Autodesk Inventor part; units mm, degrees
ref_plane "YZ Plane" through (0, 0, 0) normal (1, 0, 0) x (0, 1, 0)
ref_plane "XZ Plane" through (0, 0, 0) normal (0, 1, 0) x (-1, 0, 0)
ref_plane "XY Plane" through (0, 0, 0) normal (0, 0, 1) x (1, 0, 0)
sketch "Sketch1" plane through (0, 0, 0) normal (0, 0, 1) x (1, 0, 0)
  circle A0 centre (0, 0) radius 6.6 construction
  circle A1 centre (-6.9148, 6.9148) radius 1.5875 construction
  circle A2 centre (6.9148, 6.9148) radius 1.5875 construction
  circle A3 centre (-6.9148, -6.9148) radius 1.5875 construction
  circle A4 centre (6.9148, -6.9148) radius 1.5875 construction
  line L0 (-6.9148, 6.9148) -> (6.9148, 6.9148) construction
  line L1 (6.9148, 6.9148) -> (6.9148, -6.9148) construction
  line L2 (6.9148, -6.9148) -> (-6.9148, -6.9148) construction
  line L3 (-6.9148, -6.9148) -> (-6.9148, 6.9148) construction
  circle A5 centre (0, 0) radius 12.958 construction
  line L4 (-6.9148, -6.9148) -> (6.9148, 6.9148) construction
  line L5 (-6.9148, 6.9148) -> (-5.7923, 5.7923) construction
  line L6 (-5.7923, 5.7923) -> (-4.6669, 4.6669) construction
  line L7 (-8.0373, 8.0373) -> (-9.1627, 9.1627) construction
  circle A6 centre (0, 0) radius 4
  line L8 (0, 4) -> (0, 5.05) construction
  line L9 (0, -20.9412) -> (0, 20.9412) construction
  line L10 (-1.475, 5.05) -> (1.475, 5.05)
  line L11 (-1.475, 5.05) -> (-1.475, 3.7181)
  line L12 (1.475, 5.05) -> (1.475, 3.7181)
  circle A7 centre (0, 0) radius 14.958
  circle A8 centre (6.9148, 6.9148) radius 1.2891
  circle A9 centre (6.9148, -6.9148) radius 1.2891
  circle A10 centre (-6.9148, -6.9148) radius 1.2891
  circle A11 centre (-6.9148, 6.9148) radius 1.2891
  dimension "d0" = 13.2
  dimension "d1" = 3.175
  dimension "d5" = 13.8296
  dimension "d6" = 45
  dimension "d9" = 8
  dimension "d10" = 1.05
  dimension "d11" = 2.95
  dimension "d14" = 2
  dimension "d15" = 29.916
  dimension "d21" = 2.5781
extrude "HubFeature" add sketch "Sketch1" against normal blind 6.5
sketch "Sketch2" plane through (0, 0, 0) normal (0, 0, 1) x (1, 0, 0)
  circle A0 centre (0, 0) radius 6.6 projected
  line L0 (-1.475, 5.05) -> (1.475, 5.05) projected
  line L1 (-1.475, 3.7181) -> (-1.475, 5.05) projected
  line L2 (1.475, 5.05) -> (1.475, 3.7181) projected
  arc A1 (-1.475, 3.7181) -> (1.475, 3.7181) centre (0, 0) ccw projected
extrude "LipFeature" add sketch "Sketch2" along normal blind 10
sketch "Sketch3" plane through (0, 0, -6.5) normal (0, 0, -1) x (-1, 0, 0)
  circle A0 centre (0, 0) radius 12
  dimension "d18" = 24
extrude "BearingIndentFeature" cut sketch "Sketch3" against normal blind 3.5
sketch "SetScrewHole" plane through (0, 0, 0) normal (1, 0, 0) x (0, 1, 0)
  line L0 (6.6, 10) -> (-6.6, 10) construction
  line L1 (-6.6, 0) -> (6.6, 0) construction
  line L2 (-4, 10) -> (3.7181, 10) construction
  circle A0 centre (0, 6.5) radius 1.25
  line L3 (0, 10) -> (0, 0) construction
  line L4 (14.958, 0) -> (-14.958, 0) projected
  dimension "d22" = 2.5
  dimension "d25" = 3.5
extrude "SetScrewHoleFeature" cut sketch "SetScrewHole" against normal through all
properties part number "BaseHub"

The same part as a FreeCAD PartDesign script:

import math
import FreeCAD as App
import Part
import Sketcher
Q = App.Units.Quantity

doc = App.newDocument("Part")
body = doc.addObject("PartDesign::Body", "Body")

sketch1 = doc.addObject("Sketcher::SketchObject", "Sketch")
body.addObject(sketch1)
sketch1.AttachmentSupport = (doc.XY_Plane, [""])
sketch1.MapMode = "FlatFace"
sketch1.addGeometry([
    Part.Circle(App.Vector(0, 0, 0), App.Vector(0, 0, 1), 15),
    Part.Circle(App.Vector(-6.9, -6.9, 0), App.Vector(0, 0, 1), 1.3),
    Part.Circle(App.Vector(6.9, -6.9, 0), App.Vector(0, 0, 1), 1.3),
    Part.Circle(App.Vector(-6.9, 6.9, 0), App.Vector(0, 0, 1), 1.3),
    Part.ArcOfCircle(Part.Circle(App.Vector(0, 0, 0), App.Vector(0, 0, 1), 4), math.radians(112), math.radians(428)),
    Part.LineSegment(App.Vector(-1.5, 3.7, 0), App.Vector(-1.5, 5, 0)),
    Part.LineSegment(App.Vector(-1.5, 5, 0), App.Vector(1.5, 5, 0)),
    Part.LineSegment(App.Vector(1.5, 5, 0), App.Vector(1.5, 3.7, 0)),
    Part.Circle(App.Vector(6.9, 6.9, 0), App.Vector(0, 0, 1), 1.3),
], False)
sketch1.addConstraint([
    Sketcher.Constraint("Coincident", 4, 1, 5, 1),
    Sketcher.Constraint("Coincident", 5, 2, 6, 1),
    Sketcher.Constraint("Coincident", 6, 2, 7, 1),
    Sketcher.Constraint("Coincident", 7, 2, 4, 2),
    Sketcher.Constraint("Vertical", 5),
    Sketcher.Constraint("Horizontal", 6),
    Sketcher.Constraint("Vertical", 7),
    Sketcher.Constraint("Coincident", 0, 3, -1, 1),
    Sketcher.Constraint("Coincident", 4, 3, -1, 1),
    Sketcher.Constraint("Equal", 1, 2),
    Sketcher.Constraint("Equal", 2, 3),
    Sketcher.Constraint("Equal", 3, 8),
    Sketcher.Constraint("Symmetric", 2, 3, 3, 3, -1, 1),
    Sketcher.Constraint("Symmetric", 1, 3, 8, 3, -1, 1),
    Sketcher.Constraint("Symmetric", 1, 3, 2, 3, -2),
    Sketcher.Constraint("Horizontal", 4, 1, 7, 2),
    Sketcher.Constraint("Radius", 4, Q("4 mm")),
    Sketcher.Constraint("Diameter", 0, Q("29.916 mm")),
    Sketcher.Constraint("Diameter", 1, Q("2.5782 mm")),
    Sketcher.Constraint("DistanceX", 6, 1, 6, 2, Q("2.95 mm")),
    Sketcher.Constraint("DistanceX", 1, 3, 2, 3, Q("13.8296 mm")),
    Sketcher.Constraint("DistanceY", 1, 3, 3, 3, Q("13.8296 mm")),
    Sketcher.Constraint("DistanceY", 5, 1, 5, 2, Q("1.332 mm")),
])
pad1 = doc.addObject("PartDesign::Pad", "Pad")
body.addObject(pad1)
pad1.Profile = sketch1
pad1.Length = 6.5
pad1.Reversed = True

sketch2 = doc.addObject("Sketcher::SketchObject", "Sketch001")
body.addObject(sketch2)
sketch2.AttachmentSupport = (doc.XY_Plane, [""])
sketch2.MapMode = "FlatFace"
sketch2.addGeometry([
    Part.Circle(App.Vector(0, 0, 0), App.Vector(0, 0, 1), 6.6),
    Part.LineSegment(App.Vector(-1.5, 3.7, 0), App.Vector(-1.5, 5, 0)),
    Part.LineSegment(App.Vector(-1.5, 5, 0), App.Vector(1.5, 5, 0)),
    Part.LineSegment(App.Vector(1.5, 5, 0), App.Vector(1.5, 3.7, 0)),
    Part.ArcOfCircle(Part.Circle(App.Vector(0, 0, 0), App.Vector(0, 0, 1), 4), math.radians(112), math.radians(428)),
], False)
sketch2.addConstraint([
    Sketcher.Constraint("Coincident", 1, 2, 2, 1),
    Sketcher.Constraint("Coincident", 2, 2, 3, 1),
    Sketcher.Constraint("Coincident", 3, 2, 4, 2),
    Sketcher.Constraint("Coincident", 4, 1, 1, 1),
    Sketcher.Constraint("Vertical", 1),
    Sketcher.Constraint("Horizontal", 2),
    Sketcher.Constraint("Vertical", 3),
    Sketcher.Constraint("Coincident", 0, 3, -1, 1),
    Sketcher.Constraint("Coincident", 4, 3, -1, 1),
    Sketcher.Constraint("Horizontal", 3, 2, 4, 1),
    Sketcher.Constraint("Radius", 4, Q("4 mm")),
    Sketcher.Constraint("Diameter", 0, Q("13.2 mm")),
    Sketcher.Constraint("DistanceX", 2, 1, 2, 2, Q("2.95 mm")),
    Sketcher.Constraint("DistanceY", 1, 1, 1, 2, Q("1.332 mm")),
])
pad2 = doc.addObject("PartDesign::Pad", "Pad001")
body.addObject(pad2)
pad2.Profile = sketch2
pad2.Length = 10

sketch3 = doc.addObject("Sketcher::SketchObject", "Sketch002")
body.addObject(sketch3)
sketch3.AttachmentSupport = (doc.XY_Plane, [""])
sketch3.MapMode = "FlatFace"
sketch3.AttachmentOffset = App.Placement(App.Vector(0, 0, -6.5), App.Rotation())
sketch3.addGeometry(Part.Circle(App.Vector(0, 0, 0), App.Vector(0, 0, 1), 12), False)
sketch3.addConstraint([
    Sketcher.Constraint("Coincident", 0, 3, -1, 1),
    Sketcher.Constraint("Diameter", 0, Q("24 mm")),
])
pocket1 = doc.addObject("PartDesign::Pocket", "Pocket")
body.addObject(pocket1)
pocket1.Profile = sketch3
pocket1.Length = 3.5
pocket1.Reversed = True

sketch4 = doc.addObject("Sketcher::SketchObject", "Sketch003")
body.addObject(sketch4)
sketch4.AttachmentSupport = (doc.YZ_Plane, [""])
sketch4.MapMode = "FlatFace"
sketch4.addGeometry(Part.Circle(App.Vector(0, 6.5, 0), App.Vector(0, 0, 1), 1.2), False)
sketch4.addConstraint([
    Sketcher.Constraint("PointOnObject", 0, 3, -2),
    Sketcher.Constraint("Diameter", 0, Q("2.5 mm")),
    Sketcher.Constraint("DistanceY", -1, 1, 0, 3, Q("6.5 mm")),
])
pocket2 = doc.addObject("PartDesign::Pocket", "Pocket001")
body.addObject(pocket2)
pocket2.Profile = sketch4
pocket2.Type = "ThroughAll"

doc.recompute()
